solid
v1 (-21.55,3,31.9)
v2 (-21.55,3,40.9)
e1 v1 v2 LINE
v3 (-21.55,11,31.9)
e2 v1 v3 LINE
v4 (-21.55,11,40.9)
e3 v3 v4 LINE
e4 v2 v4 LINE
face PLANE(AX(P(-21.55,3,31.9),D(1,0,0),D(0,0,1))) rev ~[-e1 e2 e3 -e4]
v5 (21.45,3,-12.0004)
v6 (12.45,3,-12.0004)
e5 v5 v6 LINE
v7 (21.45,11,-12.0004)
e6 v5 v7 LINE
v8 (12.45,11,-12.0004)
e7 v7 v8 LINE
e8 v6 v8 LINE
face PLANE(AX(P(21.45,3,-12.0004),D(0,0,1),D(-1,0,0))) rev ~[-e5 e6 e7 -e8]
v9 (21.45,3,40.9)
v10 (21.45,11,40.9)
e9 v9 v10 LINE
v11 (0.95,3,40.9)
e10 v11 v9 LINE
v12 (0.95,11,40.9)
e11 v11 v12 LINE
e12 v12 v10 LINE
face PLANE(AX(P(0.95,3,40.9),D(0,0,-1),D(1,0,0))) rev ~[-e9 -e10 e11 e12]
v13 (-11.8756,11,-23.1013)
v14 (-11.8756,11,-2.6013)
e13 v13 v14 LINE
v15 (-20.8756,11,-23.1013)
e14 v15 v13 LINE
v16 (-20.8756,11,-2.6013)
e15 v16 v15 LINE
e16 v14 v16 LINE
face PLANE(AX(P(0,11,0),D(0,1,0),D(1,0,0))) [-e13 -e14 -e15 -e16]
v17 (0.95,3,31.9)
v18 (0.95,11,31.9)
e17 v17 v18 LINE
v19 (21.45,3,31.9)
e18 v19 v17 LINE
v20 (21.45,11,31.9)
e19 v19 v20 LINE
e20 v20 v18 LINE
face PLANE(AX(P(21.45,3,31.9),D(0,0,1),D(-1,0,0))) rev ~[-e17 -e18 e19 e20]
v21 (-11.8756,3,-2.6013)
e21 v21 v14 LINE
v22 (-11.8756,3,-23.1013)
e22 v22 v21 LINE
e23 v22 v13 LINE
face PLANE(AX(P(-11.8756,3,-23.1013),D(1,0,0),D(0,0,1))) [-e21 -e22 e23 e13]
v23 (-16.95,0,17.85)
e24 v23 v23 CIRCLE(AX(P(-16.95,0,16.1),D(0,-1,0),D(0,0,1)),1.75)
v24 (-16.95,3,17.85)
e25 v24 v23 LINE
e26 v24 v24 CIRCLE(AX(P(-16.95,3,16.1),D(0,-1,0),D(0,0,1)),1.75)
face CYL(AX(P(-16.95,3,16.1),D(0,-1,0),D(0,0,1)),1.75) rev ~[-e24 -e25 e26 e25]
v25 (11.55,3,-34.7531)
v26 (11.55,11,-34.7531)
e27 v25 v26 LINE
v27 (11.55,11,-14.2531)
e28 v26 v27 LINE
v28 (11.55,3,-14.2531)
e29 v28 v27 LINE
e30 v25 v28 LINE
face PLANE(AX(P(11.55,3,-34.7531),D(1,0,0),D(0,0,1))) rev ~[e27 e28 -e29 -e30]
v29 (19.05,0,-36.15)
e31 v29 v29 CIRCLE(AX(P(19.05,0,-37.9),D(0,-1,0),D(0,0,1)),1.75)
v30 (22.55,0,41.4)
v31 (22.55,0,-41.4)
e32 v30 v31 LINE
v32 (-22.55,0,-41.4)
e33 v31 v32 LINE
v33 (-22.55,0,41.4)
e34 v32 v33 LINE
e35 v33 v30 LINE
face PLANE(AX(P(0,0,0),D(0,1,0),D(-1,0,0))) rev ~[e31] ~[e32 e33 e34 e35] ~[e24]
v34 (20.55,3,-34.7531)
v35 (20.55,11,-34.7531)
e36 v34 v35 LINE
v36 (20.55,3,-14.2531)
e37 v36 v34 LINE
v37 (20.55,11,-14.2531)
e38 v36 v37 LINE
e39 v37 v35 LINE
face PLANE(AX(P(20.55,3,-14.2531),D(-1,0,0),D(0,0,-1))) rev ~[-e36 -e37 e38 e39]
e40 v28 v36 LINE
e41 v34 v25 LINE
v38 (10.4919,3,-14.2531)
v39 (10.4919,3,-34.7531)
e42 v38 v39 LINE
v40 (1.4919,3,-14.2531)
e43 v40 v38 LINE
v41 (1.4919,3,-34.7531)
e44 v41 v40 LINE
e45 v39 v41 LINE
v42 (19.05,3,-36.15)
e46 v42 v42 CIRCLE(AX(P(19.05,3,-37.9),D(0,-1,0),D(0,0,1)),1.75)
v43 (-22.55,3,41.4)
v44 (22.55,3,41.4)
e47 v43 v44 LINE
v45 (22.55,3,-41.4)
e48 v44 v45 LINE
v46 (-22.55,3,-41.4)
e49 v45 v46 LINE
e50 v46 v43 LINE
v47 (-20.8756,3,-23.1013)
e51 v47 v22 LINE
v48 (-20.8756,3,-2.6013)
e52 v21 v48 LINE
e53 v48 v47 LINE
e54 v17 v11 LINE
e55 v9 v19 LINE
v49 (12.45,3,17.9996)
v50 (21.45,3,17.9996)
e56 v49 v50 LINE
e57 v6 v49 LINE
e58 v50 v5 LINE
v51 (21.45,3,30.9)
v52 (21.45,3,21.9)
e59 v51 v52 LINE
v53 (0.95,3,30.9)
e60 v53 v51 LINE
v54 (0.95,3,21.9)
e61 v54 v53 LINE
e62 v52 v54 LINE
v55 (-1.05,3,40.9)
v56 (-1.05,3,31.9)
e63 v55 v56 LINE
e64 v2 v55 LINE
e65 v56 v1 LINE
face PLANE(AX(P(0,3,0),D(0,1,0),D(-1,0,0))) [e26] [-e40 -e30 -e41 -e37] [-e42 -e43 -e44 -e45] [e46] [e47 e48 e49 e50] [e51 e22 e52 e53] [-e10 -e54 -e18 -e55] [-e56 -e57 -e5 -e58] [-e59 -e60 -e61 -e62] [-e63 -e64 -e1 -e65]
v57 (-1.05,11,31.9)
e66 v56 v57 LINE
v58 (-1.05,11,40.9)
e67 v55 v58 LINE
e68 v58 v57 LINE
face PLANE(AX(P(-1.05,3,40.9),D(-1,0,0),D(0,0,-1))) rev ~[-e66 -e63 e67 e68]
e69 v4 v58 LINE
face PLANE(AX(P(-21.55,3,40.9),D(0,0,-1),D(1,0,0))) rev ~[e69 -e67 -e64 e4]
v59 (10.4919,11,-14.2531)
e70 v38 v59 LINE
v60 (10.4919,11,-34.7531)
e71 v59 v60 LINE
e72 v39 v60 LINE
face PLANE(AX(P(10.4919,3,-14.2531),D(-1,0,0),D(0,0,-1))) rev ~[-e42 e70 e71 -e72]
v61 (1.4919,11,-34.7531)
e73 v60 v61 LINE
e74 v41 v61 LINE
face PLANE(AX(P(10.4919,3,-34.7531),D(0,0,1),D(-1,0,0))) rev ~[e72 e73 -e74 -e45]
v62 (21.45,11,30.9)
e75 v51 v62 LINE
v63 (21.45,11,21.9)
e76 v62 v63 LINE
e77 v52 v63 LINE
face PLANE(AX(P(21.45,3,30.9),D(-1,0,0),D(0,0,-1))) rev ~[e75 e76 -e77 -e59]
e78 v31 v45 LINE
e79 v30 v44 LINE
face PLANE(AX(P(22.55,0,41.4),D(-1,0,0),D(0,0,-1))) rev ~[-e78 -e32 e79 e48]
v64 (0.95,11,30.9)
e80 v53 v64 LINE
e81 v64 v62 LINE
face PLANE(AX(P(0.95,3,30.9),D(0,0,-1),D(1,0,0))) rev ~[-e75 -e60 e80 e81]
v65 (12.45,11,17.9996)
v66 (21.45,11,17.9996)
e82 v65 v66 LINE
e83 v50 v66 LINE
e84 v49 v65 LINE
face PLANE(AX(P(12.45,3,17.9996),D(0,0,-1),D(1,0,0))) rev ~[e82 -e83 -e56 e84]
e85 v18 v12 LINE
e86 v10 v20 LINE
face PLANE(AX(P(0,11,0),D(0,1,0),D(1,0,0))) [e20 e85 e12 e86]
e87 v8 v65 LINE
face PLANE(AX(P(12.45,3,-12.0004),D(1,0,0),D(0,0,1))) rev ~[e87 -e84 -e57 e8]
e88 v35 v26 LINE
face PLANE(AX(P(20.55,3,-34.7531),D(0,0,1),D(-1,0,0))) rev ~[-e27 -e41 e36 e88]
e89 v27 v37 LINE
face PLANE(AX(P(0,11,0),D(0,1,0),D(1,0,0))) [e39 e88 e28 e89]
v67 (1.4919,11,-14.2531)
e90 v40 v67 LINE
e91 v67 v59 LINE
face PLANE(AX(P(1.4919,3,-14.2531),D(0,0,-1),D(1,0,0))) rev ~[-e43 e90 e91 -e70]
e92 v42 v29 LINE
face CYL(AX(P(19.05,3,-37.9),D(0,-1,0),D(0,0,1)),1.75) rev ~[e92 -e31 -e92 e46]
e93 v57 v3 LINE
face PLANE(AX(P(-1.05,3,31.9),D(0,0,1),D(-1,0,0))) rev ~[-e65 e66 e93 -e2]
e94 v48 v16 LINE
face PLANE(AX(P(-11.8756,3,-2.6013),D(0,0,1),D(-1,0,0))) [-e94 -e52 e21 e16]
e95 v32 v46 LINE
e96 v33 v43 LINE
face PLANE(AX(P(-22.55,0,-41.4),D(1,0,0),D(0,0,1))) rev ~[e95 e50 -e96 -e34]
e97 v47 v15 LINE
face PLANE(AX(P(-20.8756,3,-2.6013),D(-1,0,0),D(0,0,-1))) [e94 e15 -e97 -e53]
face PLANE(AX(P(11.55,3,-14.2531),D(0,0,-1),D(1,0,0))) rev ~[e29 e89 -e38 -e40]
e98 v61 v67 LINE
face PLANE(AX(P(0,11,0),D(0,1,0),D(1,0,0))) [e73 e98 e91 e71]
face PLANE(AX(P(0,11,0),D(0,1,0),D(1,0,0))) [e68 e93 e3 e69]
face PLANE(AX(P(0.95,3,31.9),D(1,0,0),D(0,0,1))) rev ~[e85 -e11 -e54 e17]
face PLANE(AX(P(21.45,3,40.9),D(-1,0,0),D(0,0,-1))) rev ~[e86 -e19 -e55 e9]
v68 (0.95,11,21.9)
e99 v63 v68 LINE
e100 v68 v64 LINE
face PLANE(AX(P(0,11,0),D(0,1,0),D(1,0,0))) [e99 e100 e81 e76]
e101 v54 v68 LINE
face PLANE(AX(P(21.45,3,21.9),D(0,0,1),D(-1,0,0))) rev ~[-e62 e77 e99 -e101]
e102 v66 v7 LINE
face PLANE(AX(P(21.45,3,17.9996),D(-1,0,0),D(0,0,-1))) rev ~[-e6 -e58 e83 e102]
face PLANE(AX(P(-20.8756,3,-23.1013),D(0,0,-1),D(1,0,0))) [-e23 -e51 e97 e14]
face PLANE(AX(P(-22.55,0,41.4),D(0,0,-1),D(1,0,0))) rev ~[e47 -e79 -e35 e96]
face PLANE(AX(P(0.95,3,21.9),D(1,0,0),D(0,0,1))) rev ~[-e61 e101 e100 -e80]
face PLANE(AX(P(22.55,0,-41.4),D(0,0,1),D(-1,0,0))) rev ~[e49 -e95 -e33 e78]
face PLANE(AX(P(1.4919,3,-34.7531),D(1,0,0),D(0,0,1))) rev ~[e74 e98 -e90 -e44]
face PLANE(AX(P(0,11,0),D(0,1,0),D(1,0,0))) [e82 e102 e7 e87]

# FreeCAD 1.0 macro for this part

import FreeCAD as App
import Part
import Sketcher

V = App.Vector

doc = App.newDocument("Part")
body = doc.addObject("PartDesign::Body", "Body")

sketch1 = body.newObject("Sketcher::SketchObject", "Sketch")
sketch1.AttachmentSupport = (doc.getObject("XZ_Plane"), [""])
sketch1.MapMode = "FlatFace"
sketch1.addGeometry(Part.LineSegment(V(22.55, 41.4, 0), V(22.55, -41.4, 0)), False)
sketch1.addGeometry(Part.LineSegment(V(22.55, -41.4, 0), V(-22.55, -41.4, 0)), False)
sketch1.addGeometry(Part.LineSegment(V(-22.55, -41.4, 0), V(-22.55, 41.4, 0)), False)
sketch1.addGeometry(Part.LineSegment(V(-22.55, 41.4, 0), V(22.55, 41.4, 0)), False)
sketch1.addConstraint(Sketcher.Constraint("Coincident", 0, 2, 1, 1))
sketch1.addConstraint(Sketcher.Constraint("Coincident", 1, 2, 2, 1))
sketch1.addConstraint(Sketcher.Constraint("Coincident", 2, 2, 3, 1))
sketch1.addConstraint(Sketcher.Constraint("Coincident", 3, 2, 0, 1))
sketch1.addConstraint(Sketcher.Constraint("Vertical", 0))
sketch1.addConstraint(Sketcher.Constraint("Horizontal", 1))
sketch1.addConstraint(Sketcher.Constraint("Vertical", 2))
sketch1.addConstraint(Sketcher.Constraint("Horizontal", 3))
sketch1.addConstraint(Sketcher.Constraint("Symmetric", 0, 2, 2, 2, -1, 1))
sketch1.addConstraint(Sketcher.Constraint("DistanceX", 1, 2, 1, 1, 45.1))
sketch1.addConstraint(Sketcher.Constraint("DistanceY", 0, 2, 0, 1, 82.8))
pad1 = body.newObject("PartDesign::Pad", "Pad")
pad1.Profile = sketch1
pad1.Length = 3
pad1.Reversed = True

sketch2 = body.newObject("Sketcher::SketchObject", "Sketch001")
sketch2.AttachmentSupport = (doc.getObject("XZ_Plane"), [""])
sketch2.MapMode = "FlatFace"
sketch2.AttachmentOffset = App.Placement(V(0, 0, -3), App.Rotation())
sketch2.addGeometry(Part.Circle(V(-16.95, 16.1, 0), V(0, 0, 1), 1.75), False)
sketch2.addGeometry(Part.Circle(V(19.05, -37.9, 0), V(0, 0, 1), 1.75), False)
sketch2.addConstraint(Sketcher.Constraint("Equal", 0, 1))
sketch2.addConstraint(Sketcher.Constraint("Diameter", 0, 3.5))
sketch2.addConstraint(Sketcher.Constraint("DistanceX", 0, 3, 1, 3, 36.0))
sketch2.addConstraint(Sketcher.Constraint("DistanceY", 1, 3, 0, 3, 54.0))
sketch2.addConstraint(Sketcher.Constraint("DistanceY", -1, 1, 0, 3, 16.1))
sketch2.addConstraint(Sketcher.Constraint("DistanceX", 0, 3, -1, 1, 16.95))
doc.recompute()
hole = body.newObject("PartDesign::Hole", "Hole")
hole.Profile = sketch2
hole.ThreadType = "None"
hole.Diameter = 3.5
hole.DepthType = "ThroughAll"
hole.Reversed = True

sketch3 = body.newObject("Sketcher::SketchObject", "Sketch002")
sketch3.AttachmentSupport = (doc.getObject("XZ_Plane"), [""])
sketch3.MapMode = "FlatFace"
sketch3.AttachmentOffset = App.Placement(V(0, 0, -3), App.Rotation())
sketch3.addGeometry(Part.LineSegment(V(-21.55, 31.9, 0), V(-21.55, 40.9, 0)), False)
sketch3.addGeometry(Part.LineSegment(V(-21.55, 40.9, 0), V(-1.05, 40.9, 0)), False)
sketch3.addGeometry(Part.LineSegment(V(-1.05, 40.9, 0), V(-1.05, 31.9, 0)), False)
sketch3.addGeometry(Part.LineSegment(V(-1.05, 31.9, 0), V(-21.55, 31.9, 0)), False)
sketch3.addGeometry(Part.LineSegment(V(0.95, 31.9, 0), V(0.95, 40.9, 0)), False)
sketch3.addGeometry(Part.LineSegment(V(0.95, 40.9, 0), V(21.45, 40.9, 0)), False)
sketch3.addGeometry(Part.LineSegment(V(21.45, 40.9, 0), V(21.45, 31.9, 0)), False)
sketch3.addGeometry(Part.LineSegment(V(21.45, 31.9, 0), V(0.95, 31.9, 0)), False)
sketch3.addGeometry(Part.LineSegment(V(0.95, 21.9, 0), V(0.95, 30.9, 0)), False)
sketch3.addGeometry(Part.LineSegment(V(0.95, 30.9, 0), V(21.45, 30.9, 0)), False)
sketch3.addGeometry(Part.LineSegment(V(21.45, 30.9, 0), V(21.45, 21.9, 0)), False)
sketch3.addGeometry(Part.LineSegment(V(21.45, 21.9, 0), V(0.95, 21.9, 0)), False)
sketch3.addGeometry(Part.LineSegment(V(20.55, -14.2531, 0), V(20.55, -34.7531, 0)), False)
sketch3.addGeometry(Part.LineSegment(V(20.55, -34.7531, 0), V(11.55, -34.7531, 0)), False)
sketch3.addGeometry(Part.LineSegment(V(11.55, -34.7531, 0), V(11.55, -14.2531, 0)), False)
sketch3.addGeometry(Part.LineSegment(V(11.55, -14.2531, 0), V(20.55, -14.2531, 0)), False)
sketch3.addGeometry(Part.LineSegment(V(10.4919, -14.2531, 0), V(10.4919, -34.7531, 0)), False)
sketch3.addGeometry(Part.LineSegment(V(10.4919, -34.7531, 0), V(1.4919, -34.7531, 0)), False)
sketch3.addGeometry(Part.LineSegment(V(1.4919, -34.7531, 0), V(1.4919, -14.2531, 0)), False)
sketch3.addGeometry(Part.LineSegment(V(1.4919, -14.2531, 0), V(10.4919, -14.2531, 0)), False)
sketch3.addGeometry(Part.LineSegment(V(21.45, 17.9996, 0), V(21.45, -12.0004, 0)), False)
sketch3.addGeometry(Part.LineSegment(V(21.45, -12.0004, 0), V(12.45, -12.0004, 0)), False)
sketch3.addGeometry(Part.LineSegment(V(12.45, -12.0004, 0), V(12.45, 17.9996, 0)), False)
sketch3.addGeometry(Part.LineSegment(V(12.45, 17.9996, 0), V(21.45, 17.9996, 0)), False)
sketch3.addGeometry(Part.LineSegment(V(-11.8756, -23.1013, 0), V(-20.8756, -23.1013, 0)), False)
sketch3.addGeometry(Part.LineSegment(V(-20.8756, -23.1013, 0), V(-20.8756, -2.6013, 0)), False)
sketch3.addGeometry(Part.LineSegment(V(-20.8756, -2.6013, 0), V(-11.8756, -2.6013, 0)), False)
sketch3.addGeometry(Part.LineSegment(V(-11.8756, -2.6013, 0), V(-11.8756, -23.1013, 0)), False)
sketch3.addConstraint(Sketcher.Constraint("Coincident", 0, 2, 1, 1))
sketch3.addConstraint(Sketcher.Constraint("Coincident", 1, 2, 2, 1))
sketch3.addConstraint(Sketcher.Constraint("Coincident", 2, 2, 3, 1))
sketch3.addConstraint(Sketcher.Constraint("Coincident", 3, 2, 0, 1))
sketch3.addConstraint(Sketcher.Constraint("Coincident", 4, 2, 5, 1))
sketch3.addConstraint(Sketcher.Constraint("Coincident", 5, 2, 6, 1))
sketch3.addConstraint(Sketcher.Constraint("Coincident", 6, 2, 7, 1))
sketch3.addConstraint(Sketcher.Constraint("Coincident", 7, 2, 4, 1))
sketch3.addConstraint(Sketcher.Constraint("Coincident", 8, 2, 9, 1))
sketch3.addConstraint(Sketcher.Constraint("Coincident", 9, 2, 10, 1))
sketch3.addConstraint(Sketcher.Constraint("Coincident", 10, 2, 11, 1))
sketch3.addConstraint(Sketcher.Constraint("Coincident", 11, 2, 8, 1))
sketch3.addConstraint(Sketcher.Constraint("Coincident", 12, 2, 13, 1))
sketch3.addConstraint(Sketcher.Constraint("Coincident", 13, 2, 14, 1))
sketch3.addConstraint(Sketcher.Constraint("Coincident", 14, 2, 15, 1))
sketch3.addConstraint(Sketcher.Constraint("Coincident", 15, 2, 12, 1))
sketch3.addConstraint(Sketcher.Constraint("Coincident", 16, 2, 17, 1))
sketch3.addConstraint(Sketcher.Constraint("Coincident", 17, 2, 18, 1))
sketch3.addConstraint(Sketcher.Constraint("Coincident", 18, 2, 19, 1))
sketch3.addConstraint(Sketcher.Constraint("Coincident", 19, 2, 16, 1))
sketch3.addConstraint(Sketcher.Constraint("Coincident", 20, 2, 21, 1))
sketch3.addConstraint(Sketcher.Constraint("Coincident", 21, 2, 22, 1))
sketch3.addConstraint(Sketcher.Constraint("Coincident", 22, 2, 23, 1))
sketch3.addConstraint(Sketcher.Constraint("Coincident", 23, 2, 20, 1))
sketch3.addConstraint(Sketcher.Constraint("Coincident", 24, 2, 25, 1))
sketch3.addConstraint(Sketcher.Constraint("Coincident", 25, 2, 26, 1))
sketch3.addConstraint(Sketcher.Constraint("Coincident", 26, 2, 27, 1))
sketch3.addConstraint(Sketcher.Constraint("Coincident", 27, 2, 24, 1))
sketch3.addConstraint(Sketcher.Constraint("Vertical", 0))
sketch3.addConstraint(Sketcher.Constraint("Horizontal", 1))
sketch3.addConstraint(Sketcher.Constraint("Vertical", 2))
sketch3.addConstraint(Sketcher.Constraint("Horizontal", 3))
sketch3.addConstraint(Sketcher.Constraint("Vertical", 4))
sketch3.addConstraint(Sketcher.Constraint("Horizontal", 5))
sketch3.addConstraint(Sketcher.Constraint("Vertical", 6))
sketch3.addConstraint(Sketcher.Constraint("Horizontal", 7))
sketch3.addConstraint(Sketcher.Constraint("Vertical", 8))
sketch3.addConstraint(Sketcher.Constraint("Horizontal", 9))
sketch3.addConstraint(Sketcher.Constraint("Vertical", 10))
sketch3.addConstraint(Sketcher.Constraint("Horizontal", 11))
sketch3.addConstraint(Sketcher.Constraint("Vertical", 12))
sketch3.addConstraint(Sketcher.Constraint("Horizontal", 13))
sketch3.addConstraint(Sketcher.Constraint("Vertical", 14))
sketch3.addConstraint(Sketcher.Constraint("Horizontal", 15))
sketch3.addConstraint(Sketcher.Constraint("Vertical", 16))
sketch3.addConstraint(Sketcher.Constraint("Horizontal", 17))
sketch3.addConstraint(Sketcher.Constraint("Vertical", 18))
sketch3.addConstraint(Sketcher.Constraint("Horizontal", 19))
sketch3.addConstraint(Sketcher.Constraint("Vertical", 20))
sketch3.addConstraint(Sketcher.Constraint("Horizontal", 21))
sketch3.addConstraint(Sketcher.Constraint("Vertical", 22))
sketch3.addConstraint(Sketcher.Constraint("Horizontal", 23))
sketch3.addConstraint(Sketcher.Constraint("Horizontal", 24))
sketch3.addConstraint(Sketcher.Constraint("Vertical", 25))
sketch3.addConstraint(Sketcher.Constraint("Horizontal", 26))
sketch3.addConstraint(Sketcher.Constraint("Vertical", 27))
sketch3.addConstraint(Sketcher.Constraint("Horizontal", 1, 2, 4, 2))
sketch3.addConstraint(Sketcher.Constraint("Horizontal", 3, 2, 6, 2))
sketch3.addConstraint(Sketcher.Constraint("Horizontal", 13, 2, 16, 2))
sketch3.addConstraint(Sketcher.Constraint("Horizontal", 15, 2, 18, 2))
sketch3.addConstraint(Sketcher.Constraint("Vertical", 7, 2, 8, 2))
sketch3.addConstraint(Sketcher.Constraint("Vertical", 6, 2, 9, 2))
sketch3.addConstraint(Sketcher.Constraint("Vertical", 10, 2, 20, 2))
sketch3.addConstraint(Sketcher.Constraint("Equal", 3, 5))
sketch3.addConstraint(Sketcher.Constraint("Equal", 15, 17))
sketch3.addConstraint(Sketcher.Constraint("Equal", 19, 21))
sketch3.addConstraint(Sketcher.Constraint("Equal", 23, 24))
sketch3.addConstraint(Sketcher.Constraint("Equal", 26, 0))
sketch3.addConstraint(Sketcher.Constraint("Equal", 6, 8))
sketch3.addConstraint(Sketcher.Constraint("Equal", 11, 12))
sketch3.addConstraint(Sketcher.Constraint("Equal", 18, 25))
sketch3.addConstraint(Sketcher.Constraint("DistanceX", 13, 2, 13, 1, 9.0))
sketch3.addConstraint(Sketcher.Constraint("DistanceY", 20, 2, 20, 1, 30.0))
sketch3.addConstraint(Sketcher.Constraint("DistanceX", 1, 1, 1, 2, 20.5))
sketch3.addConstraint(Sketcher.Constraint("DistanceX", 1, 2, 4, 2, 2.0))
sketch3.addConstraint(Sketcher.Constraint("DistanceY", 8, 2, 7, 2, 1.0))
sketch3.addConstraint(Sketcher.Constraint("DistanceY", -1, 1, 0, 2, 40.9))
sketch3.addConstraint(Sketcher.Constraint("DistanceX", 12, 2, 10, 2, 0.9))
sketch3.addConstraint(Sketcher.Constraint("DistanceX", 0, 2, -1, 1, 21.55))
sketch3.addConstraint(Sketcher.Constraint("DistanceY", 12, 2, -1, 1, 34.753))
sketch3.addConstraint(Sketcher.Constraint("DistanceX", -1, 1, 16, 2, 10.492))
sketch3.addConstraint(Sketcher.Constraint("DistanceY", 21, 2, 26, 2, 9.399))
sketch3.addConstraint(Sketcher.Constraint("DistanceY", 20, 2, -1, 1, 12.0004))
sketch3.addConstraint(Sketcher.Constraint("DistanceX", 24, 2, -1, 1, 20.8756))
pad2 = body.newObject("PartDesign::Pad", "Pad001")
pad2.Profile = sketch3
pad2.Length = 8
pad2.Reversed = True

doc.recompute()
